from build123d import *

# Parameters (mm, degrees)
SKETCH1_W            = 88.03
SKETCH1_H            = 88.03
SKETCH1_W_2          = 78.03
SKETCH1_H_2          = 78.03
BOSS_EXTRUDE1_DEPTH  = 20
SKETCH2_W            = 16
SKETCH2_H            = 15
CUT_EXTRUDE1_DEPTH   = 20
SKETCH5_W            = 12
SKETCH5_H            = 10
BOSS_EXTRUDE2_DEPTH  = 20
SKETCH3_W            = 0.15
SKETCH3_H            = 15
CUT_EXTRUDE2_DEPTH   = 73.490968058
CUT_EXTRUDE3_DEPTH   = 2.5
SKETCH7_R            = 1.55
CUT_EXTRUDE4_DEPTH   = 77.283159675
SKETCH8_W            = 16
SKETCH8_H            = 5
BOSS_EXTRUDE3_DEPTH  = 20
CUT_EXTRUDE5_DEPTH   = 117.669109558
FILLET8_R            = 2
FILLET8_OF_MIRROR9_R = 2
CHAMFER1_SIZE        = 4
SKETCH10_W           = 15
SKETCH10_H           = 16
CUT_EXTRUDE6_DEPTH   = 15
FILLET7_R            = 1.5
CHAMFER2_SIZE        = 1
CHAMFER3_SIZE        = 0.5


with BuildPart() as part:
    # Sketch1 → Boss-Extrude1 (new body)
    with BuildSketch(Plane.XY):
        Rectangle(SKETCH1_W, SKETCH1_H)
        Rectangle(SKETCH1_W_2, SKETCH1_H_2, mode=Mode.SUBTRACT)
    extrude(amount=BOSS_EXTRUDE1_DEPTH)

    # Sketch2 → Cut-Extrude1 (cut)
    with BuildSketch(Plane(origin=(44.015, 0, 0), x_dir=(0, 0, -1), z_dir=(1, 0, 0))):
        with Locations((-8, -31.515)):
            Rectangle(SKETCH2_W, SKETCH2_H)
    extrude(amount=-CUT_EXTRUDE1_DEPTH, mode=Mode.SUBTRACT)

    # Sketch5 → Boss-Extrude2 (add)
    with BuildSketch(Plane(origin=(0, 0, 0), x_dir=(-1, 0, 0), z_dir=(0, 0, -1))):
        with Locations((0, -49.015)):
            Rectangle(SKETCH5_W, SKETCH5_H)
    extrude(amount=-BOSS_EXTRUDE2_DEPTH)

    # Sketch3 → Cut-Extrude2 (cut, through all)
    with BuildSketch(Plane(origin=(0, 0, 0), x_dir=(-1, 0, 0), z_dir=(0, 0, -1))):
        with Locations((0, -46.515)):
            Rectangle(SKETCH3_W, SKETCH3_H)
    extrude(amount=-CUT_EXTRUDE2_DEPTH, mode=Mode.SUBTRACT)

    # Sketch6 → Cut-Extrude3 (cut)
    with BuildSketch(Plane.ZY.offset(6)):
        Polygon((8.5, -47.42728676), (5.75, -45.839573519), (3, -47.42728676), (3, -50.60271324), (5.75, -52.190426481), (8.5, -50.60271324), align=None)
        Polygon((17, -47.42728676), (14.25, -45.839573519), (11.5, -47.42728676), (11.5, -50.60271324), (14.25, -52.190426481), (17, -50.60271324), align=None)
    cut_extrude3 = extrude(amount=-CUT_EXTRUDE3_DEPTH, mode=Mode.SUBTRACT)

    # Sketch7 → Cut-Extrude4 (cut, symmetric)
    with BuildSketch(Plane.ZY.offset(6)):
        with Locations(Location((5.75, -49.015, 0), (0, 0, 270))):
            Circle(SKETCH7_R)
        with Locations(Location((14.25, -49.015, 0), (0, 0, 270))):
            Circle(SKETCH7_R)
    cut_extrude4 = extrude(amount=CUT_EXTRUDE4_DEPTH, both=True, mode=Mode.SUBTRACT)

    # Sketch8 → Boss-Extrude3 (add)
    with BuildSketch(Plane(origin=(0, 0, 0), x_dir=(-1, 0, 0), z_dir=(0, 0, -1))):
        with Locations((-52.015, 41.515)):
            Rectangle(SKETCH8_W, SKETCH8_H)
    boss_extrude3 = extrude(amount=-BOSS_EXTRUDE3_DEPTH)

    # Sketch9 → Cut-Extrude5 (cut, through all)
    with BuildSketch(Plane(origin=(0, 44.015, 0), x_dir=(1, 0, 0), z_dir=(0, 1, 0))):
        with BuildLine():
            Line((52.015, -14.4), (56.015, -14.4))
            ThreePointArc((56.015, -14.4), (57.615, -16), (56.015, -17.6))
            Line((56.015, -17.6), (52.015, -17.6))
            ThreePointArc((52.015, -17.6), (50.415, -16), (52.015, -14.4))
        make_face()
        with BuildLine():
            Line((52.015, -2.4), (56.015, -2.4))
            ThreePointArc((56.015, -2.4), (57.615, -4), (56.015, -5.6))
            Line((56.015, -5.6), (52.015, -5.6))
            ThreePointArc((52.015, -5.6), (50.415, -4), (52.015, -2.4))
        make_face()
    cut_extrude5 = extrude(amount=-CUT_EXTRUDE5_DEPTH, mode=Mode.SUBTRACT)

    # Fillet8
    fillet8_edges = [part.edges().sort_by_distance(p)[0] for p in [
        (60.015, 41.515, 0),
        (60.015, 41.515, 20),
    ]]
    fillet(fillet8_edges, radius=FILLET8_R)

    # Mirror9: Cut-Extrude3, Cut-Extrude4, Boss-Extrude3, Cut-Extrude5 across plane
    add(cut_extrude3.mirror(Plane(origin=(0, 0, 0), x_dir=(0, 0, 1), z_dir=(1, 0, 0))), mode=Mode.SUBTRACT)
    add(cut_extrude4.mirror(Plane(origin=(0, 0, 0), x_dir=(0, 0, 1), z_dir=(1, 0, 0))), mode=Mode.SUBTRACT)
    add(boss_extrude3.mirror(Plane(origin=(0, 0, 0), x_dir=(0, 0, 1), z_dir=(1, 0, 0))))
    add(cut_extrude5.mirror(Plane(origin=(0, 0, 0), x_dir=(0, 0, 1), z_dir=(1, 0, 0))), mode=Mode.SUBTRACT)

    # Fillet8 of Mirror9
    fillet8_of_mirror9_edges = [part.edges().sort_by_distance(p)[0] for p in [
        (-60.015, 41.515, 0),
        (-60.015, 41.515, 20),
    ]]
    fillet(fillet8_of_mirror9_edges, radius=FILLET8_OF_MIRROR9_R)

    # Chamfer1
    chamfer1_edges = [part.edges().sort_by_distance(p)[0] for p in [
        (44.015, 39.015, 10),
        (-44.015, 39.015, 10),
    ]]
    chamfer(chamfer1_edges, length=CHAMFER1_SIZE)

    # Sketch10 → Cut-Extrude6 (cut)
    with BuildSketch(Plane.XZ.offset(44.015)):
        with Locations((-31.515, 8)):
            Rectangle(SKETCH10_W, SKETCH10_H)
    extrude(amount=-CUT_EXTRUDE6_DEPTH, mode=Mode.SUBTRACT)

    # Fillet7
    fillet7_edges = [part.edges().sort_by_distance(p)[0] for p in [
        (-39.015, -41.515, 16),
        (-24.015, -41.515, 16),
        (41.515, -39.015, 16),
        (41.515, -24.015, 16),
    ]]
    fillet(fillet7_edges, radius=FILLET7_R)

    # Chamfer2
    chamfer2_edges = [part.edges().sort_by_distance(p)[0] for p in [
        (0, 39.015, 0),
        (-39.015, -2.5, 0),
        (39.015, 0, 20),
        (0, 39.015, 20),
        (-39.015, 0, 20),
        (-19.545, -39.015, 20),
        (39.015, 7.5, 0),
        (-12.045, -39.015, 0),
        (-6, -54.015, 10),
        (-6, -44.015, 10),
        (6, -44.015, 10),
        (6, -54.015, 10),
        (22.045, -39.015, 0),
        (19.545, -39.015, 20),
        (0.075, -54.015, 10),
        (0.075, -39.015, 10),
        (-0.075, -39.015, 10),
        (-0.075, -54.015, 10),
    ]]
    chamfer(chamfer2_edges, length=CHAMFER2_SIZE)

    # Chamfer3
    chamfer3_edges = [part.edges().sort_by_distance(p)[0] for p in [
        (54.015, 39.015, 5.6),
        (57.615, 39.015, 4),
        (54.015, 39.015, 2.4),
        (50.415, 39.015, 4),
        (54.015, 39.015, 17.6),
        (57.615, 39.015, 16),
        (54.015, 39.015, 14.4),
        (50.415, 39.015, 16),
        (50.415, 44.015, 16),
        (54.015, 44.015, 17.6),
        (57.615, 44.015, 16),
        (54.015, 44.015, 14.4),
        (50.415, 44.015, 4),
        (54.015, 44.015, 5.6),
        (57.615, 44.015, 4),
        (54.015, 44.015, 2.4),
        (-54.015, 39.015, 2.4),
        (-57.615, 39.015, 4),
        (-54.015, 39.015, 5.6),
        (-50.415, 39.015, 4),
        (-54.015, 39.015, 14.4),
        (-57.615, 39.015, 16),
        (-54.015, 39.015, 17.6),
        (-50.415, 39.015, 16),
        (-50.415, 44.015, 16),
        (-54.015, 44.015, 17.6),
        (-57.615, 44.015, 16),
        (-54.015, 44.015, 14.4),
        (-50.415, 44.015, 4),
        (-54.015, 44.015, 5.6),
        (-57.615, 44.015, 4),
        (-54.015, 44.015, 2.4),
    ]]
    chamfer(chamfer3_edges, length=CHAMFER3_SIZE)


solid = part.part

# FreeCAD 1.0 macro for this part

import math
import FreeCAD as App
import Part
import Sketcher
from FreeCAD import Vector
Q = App.Units.Quantity


def edges_at(feature, points):
    """Names of the edges that pass closest to the given points."""
    edges = feature.Shape.Edges
    near = lambda p: min(range(len(edges)), key=lambda i: edges[i].distToShape(Part.Vertex(*p))[0])
    return sorted({f"Edge{near(p) + 1}" for p in points})


def add_polygon(sketch, points):
    """Adds a closed chain of lines whose ends are joined by coincident constraints."""
    first, n = sketch.GeometryCount, len(points)
    for a, b in zip(points, points[1:] + points[:1]):
        sketch.addGeometry(Part.LineSegment(App.Vector(*a, 0), App.Vector(*b, 0)), False)
    for i in range(n):
        sketch.addConstraint(Sketcher.Constraint("Coincident", first + i, 2, first + (i + 1) % n, 1))

doc = App.newDocument("Part")
body = doc.addObject("PartDesign::Body", "Body")

# Sketch on XY plane
sketch1 = body.newObject("Sketcher::SketchObject", "Sketch")
sketch1.AttachmentSupport = (doc.getObject("XY_Plane"), [""])
sketch1.MapMode = "FlatFace"
add_polygon(sketch1, [(-44.015, 44.015), (-44.015, -44.015), (44.015, -44.015), (44.015, 44.015)])  # lines 0-3
add_polygon(sketch1, [(39.015, -39.015), (-39.015, -39.015), (-39.015, 39.015), (39.015, 39.015)])  # lines 4-7
sketch1.addConstraint(Sketcher.Constraint("Vertical", 0))
sketch1.addConstraint(Sketcher.Constraint("Horizontal", 1))
sketch1.addConstraint(Sketcher.Constraint("Vertical", 2))
sketch1.addConstraint(Sketcher.Constraint("Horizontal", 3))
sketch1.addConstraint(Sketcher.Constraint("Horizontal", 4))
sketch1.addConstraint(Sketcher.Constraint("Vertical", 5))
sketch1.addConstraint(Sketcher.Constraint("Horizontal", 6))
sketch1.addConstraint(Sketcher.Constraint("Vertical", 7))
sketch1.addConstraint(Sketcher.Constraint("Symmetric", 0, 2, 2, 2, -1, 1))
sketch1.addConstraint(Sketcher.Constraint("Symmetric", 4, 2, 6, 2, -1, 1))
sketch1.addConstraint(Sketcher.Constraint("Equal", 3, 0))
sketch1.addConstraint(Sketcher.Constraint("Equal", 6, 5))
sketch1.addConstraint(Sketcher.Constraint("DistanceX", 0, 2, 4, 2, 5.0))
sketch1.addConstraint(Sketcher.Constraint("DistanceX", 1, 1, 1, 2, 88.03))
pad1 = body.newObject("PartDesign::Pad", "Pad")
pad1.Profile = sketch1
pad1.Length = 20

# Sketch on YZ plane
sketch2 = body.newObject("Sketcher::SketchObject", "Sketch001")
sketch2.AttachmentSupport = (doc.getObject("YZ_Plane"), [""])
sketch2.MapMode = "FlatFace"
sketch2.AttachmentOffset = App.Placement(Vector(0, 0, 44.015), App.Rotation())
add_polygon(sketch2, [(-24.015, 16), (-39.015, 16), (-39.015, 0), (-24.015, 0)])  # lines 0-3
sketch2.addConstraint(Sketcher.Constraint("Horizontal", 0))
sketch2.addConstraint(Sketcher.Constraint("Vertical", 1))
sketch2.addConstraint(Sketcher.Constraint("Horizontal", 2))
sketch2.addConstraint(Sketcher.Constraint("Vertical", 3))
sketch2.addConstraint(Sketcher.Constraint("PointOnObject", 1, 2, -1))
sketch2.addConstraint(Sketcher.Constraint("DistanceX", 0, 2, 0, 1, 15.0))
sketch2.addConstraint(Sketcher.Constraint("DistanceY", 1, 2, 1, 1, 16.0))
sketch2.addConstraint(Sketcher.Constraint("DistanceX", 0, 2, -1, 1, 39.015))
pocket1 = body.newObject("PartDesign::Pocket", "Pocket")
pocket1.Profile = sketch2
pocket1.Length = 20

# Sketch on XY plane
sketch3 = body.newObject("Sketcher::SketchObject", "Sketch002")
sketch3.AttachmentSupport = (doc.getObject("XY_Plane"), [""])
sketch3.MapMode = "FlatFace"
add_polygon(sketch3, [(6, -44.015), (6, -54.015), (-6, -54.015), (-6, -44.015)])  # lines 0-3
sketch3.addConstraint(Sketcher.Constraint("Vertical", 0))
sketch3.addConstraint(Sketcher.Constraint("Horizontal", 1))
sketch3.addConstraint(Sketcher.Constraint("Vertical", 2))
sketch3.addConstraint(Sketcher.Constraint("Horizontal", 3))
sketch3.addConstraint(Sketcher.Constraint("DistanceX", 1, 2, 1, 1, 12.0))
sketch3.addConstraint(Sketcher.Constraint("DistanceY", 0, 2, 0, 1, 10.0))
sketch3.addConstraint(Sketcher.Constraint("DistanceX", -1, 1, 0, 2, 6.0))
sketch3.addConstraint(Sketcher.Constraint("DistanceY", 0, 2, -1, 1, 54.015))
pad2 = body.newObject("PartDesign::Pad", "Pad001")
pad2.Profile = sketch3
pad2.Length = 20

# Sketch on XY plane
sketch4 = body.newObject("Sketcher::SketchObject", "Sketch003")
sketch4.AttachmentSupport = (doc.getObject("XY_Plane"), [""])
sketch4.MapMode = "FlatFace"
add_polygon(sketch4, [(0.075, -39.015), (0.075, -54.015), (-0.075, -54.015), (-0.075, -39.015)])  # lines 0-3
sketch4.addConstraint(Sketcher.Constraint("Vertical", 0))
sketch4.addConstraint(Sketcher.Constraint("Horizontal", 1))
sketch4.addConstraint(Sketcher.Constraint("Vertical", 2))
sketch4.addConstraint(Sketcher.Constraint("Horizontal", 3))
sketch4.addConstraint(Sketcher.Constraint("DistanceY", 0, 2, 0, 1, 15.0))
sketch4.addConstraint(Sketcher.Constraint("DistanceX", 1, 2, 1, 1, 0.15))
sketch4.addConstraint(Sketcher.Constraint("DistanceX", -1, 1, 0, 2, 0.075))
sketch4.addConstraint(Sketcher.Constraint("DistanceY", 0, 2, -1, 1, 54.015))
pocket2 = body.newObject("PartDesign::Pocket", "Pocket001")
pocket2.Profile = sketch4
pocket2.Type = "ThroughAll"
pocket2.Reversed = True

# Sketch on YZ plane
sketch5 = body.newObject("Sketcher::SketchObject", "Sketch004")
sketch5.AttachmentSupport = (doc.getObject("YZ_Plane"), [""])
sketch5.MapMode = "FlatFace"
sketch5.AttachmentOffset = App.Placement(Vector(0, 0, -6), App.Rotation())
add_polygon(sketch5, [(-47.427287, 8.5), (-45.839574, 5.75), (-47.427287, 3), (-50.602713, 3), (-52.190426, 5.75), (-50.602713, 8.5)])  # lines 0-5
add_polygon(sketch5, [(-47.427287, 17), (-45.839574, 14.25), (-47.427287, 11.5), (-50.602713, 11.5), (-52.190426, 14.25), (-50.602713, 17)])  # lines 6-11
sketch5.addConstraint(Sketcher.Constraint("Horizontal", 2))
sketch5.addConstraint(Sketcher.Constraint("Horizontal", 5))
sketch5.addConstraint(Sketcher.Constraint("Horizontal", 8))
sketch5.addConstraint(Sketcher.Constraint("Horizontal", 11))
sketch5.addConstraint(Sketcher.Constraint("Parallel", 0, 3))
sketch5.addConstraint(Sketcher.Constraint("Parallel", 1, 4))
sketch5.addConstraint(Sketcher.Constraint("Parallel", 3, 6))
sketch5.addConstraint(Sketcher.Constraint("Parallel", 4, 7))
sketch5.addConstraint(Sketcher.Constraint("Parallel", 6, 9))
sketch5.addConstraint(Sketcher.Constraint("Parallel", 7, 10))
sketch5.addConstraint(Sketcher.Constraint("Horizontal", 0, 2, 3, 2))
sketch5.addConstraint(Sketcher.Constraint("Horizontal", 6, 2, 9, 2))
sketch5.addConstraint(Sketcher.Constraint("Vertical", 2, 2, 4, 2))
sketch5.addConstraint(Sketcher.Constraint("Vertical", 1, 2, 5, 2))
sketch5.addConstraint(Sketcher.Constraint("Vertical", 0, 2, 6, 2))
sketch5.addConstraint(Sketcher.Constraint("Vertical", 5, 2, 7, 2))
sketch5.addConstraint(Sketcher.Constraint("Vertical", 4, 2, 8, 2))
sketch5.addConstraint(Sketcher.Constraint("Vertical", 8, 2, 10, 2))
sketch5.addConstraint(Sketcher.Constraint("Angle", 0, Q("-60 deg")))
sketch5.addConstraint(Sketcher.Constraint("DistanceY", -1, 1, 1, 2, 3.0))
sketch5.addConstraint(Sketcher.Constraint("DistanceY", -1, 1, 10, 2, 17.0))
sketch5.addConstraint(Sketcher.Constraint("DistanceY", 5, 2, 7, 2, 3.0))
sketch5.addConstraint(Sketcher.Constraint("DistanceX", 2, 2, 2, 1, 3.175426))
sketch5.addConstraint(Sketcher.Constraint("DistanceX", 0, 2, -1, 1, 45.839574))
pocket3 = body.newObject("PartDesign::Pocket", "Pocket002")
pocket3.Profile = sketch5
pocket3.Length = 2.5
pocket3.Reversed = True

# Sketch on YZ plane
sketch6 = body.newObject("Sketcher::SketchObject", "Sketch005")
sketch6.AttachmentSupport = (doc.getObject("YZ_Plane"), [""])
sketch6.MapMode = "FlatFace"
sketch6.AttachmentOffset = App.Placement(Vector(0, 0, -6), App.Rotation())
sketch6.addGeometry(Part.Circle(Vector(-49.015, 5.75, 0), Vector(0, 0, 1), 1.55), False)
sketch6.addGeometry(Part.Circle(Vector(-49.015, 14.25, 0), Vector(0, 0, 1), 1.55), False)
sketch6.addConstraint(Sketcher.Constraint("Equal", 0, 1))
sketch6.addConstraint(Sketcher.Constraint("Vertical", 0, 3, 1, 3))
sketch6.addConstraint(Sketcher.Constraint("Diameter", 0, 3.1))
sketch6.addConstraint(Sketcher.Constraint("DistanceY", 0, 3, 1, 3, 8.5))
sketch6.addConstraint(Sketcher.Constraint("DistanceY", -1, 1, 0, 3, 5.75))
sketch6.addConstraint(Sketcher.Constraint("DistanceX", 0, 3, -1, 1, 49.015))
pocket4 = body.newObject("PartDesign::Pocket", "Pocket003")
pocket4.Profile = sketch6
pocket4.Length = 154.566319
pocket4.Midplane = True

# Sketch on XY plane
sketch7 = body.newObject("Sketcher::SketchObject", "Sketch006")
sketch7.AttachmentSupport = (doc.getObject("XY_Plane"), [""])
sketch7.MapMode = "FlatFace"
add_polygon(sketch7, [(60.015, 44.015), (60.015, 39.015), (44.015, 39.015), (44.015, 44.015)])  # lines 0-3
sketch7.addConstraint(Sketcher.Constraint("Vertical", 0))
sketch7.addConstraint(Sketcher.Constraint("Horizontal", 1))
sketch7.addConstraint(Sketcher.Constraint("Vertical", 2))
sketch7.addConstraint(Sketcher.Constraint("Horizontal", 3))
sketch7.addConstraint(Sketcher.Constraint("DistanceX", 1, 2, 1, 1, 16.0))
sketch7.addConstraint(Sketcher.Constraint("DistanceY", 0, 2, 0, 1, 5.0))
sketch7.addConstraint(Sketcher.Constraint("DistanceX", -1, 1, 0, 2, 60.015))
sketch7.addConstraint(Sketcher.Constraint("DistanceY", -1, 1, 0, 2, 39.015))
pad3 = body.newObject("PartDesign::Pad", "Pad002")
pad3.Profile = sketch7
pad3.Length = 20

# Sketch on XZ plane
sketch8 = body.newObject("Sketcher::SketchObject", "Sketch007")
sketch8.AttachmentSupport = (doc.getObject("XZ_Plane"), [""])
sketch8.MapMode = "FlatFace"
sketch8.AttachmentOffset = App.Placement(Vector(0, 0, -44.015), App.Rotation())
sketch8.addGeometry(Part.LineSegment(Vector(56.015, 14.4, 0), Vector(52.015, 14.4, 0)), False)
sketch8.addGeometry(Part.ArcOfCircle(Part.Circle(Vector(52.015, 16, 0), Vector(0, 0, 1), 1.6), math.radians(90), math.radians(270)), False)
sketch8.addGeometry(Part.LineSegment(Vector(52.015, 17.6, 0), Vector(56.015, 17.6, 0)), False)
sketch8.addGeometry(Part.ArcOfCircle(Part.Circle(Vector(56.015, 16, 0), Vector(0, 0, 1), 1.6), math.radians(-90), math.radians(90)), False)
sketch8.addGeometry(Part.LineSegment(Vector(56.015, 2.4, 0), Vector(52.015, 2.4, 0)), False)
sketch8.addGeometry(Part.ArcOfCircle(Part.Circle(Vector(52.015, 4, 0), Vector(0, 0, 1), 1.6), math.radians(90), math.radians(270)), False)
sketch8.addGeometry(Part.LineSegment(Vector(52.015, 5.6, 0), Vector(56.015, 5.6, 0)), False)
sketch8.addGeometry(Part.ArcOfCircle(Part.Circle(Vector(56.015, 4, 0), Vector(0, 0, 1), 1.6), math.radians(-90), math.radians(90)), False)
sketch8.addConstraint(Sketcher.Constraint("Tangent", 0, 2, 1, 2))
sketch8.addConstraint(Sketcher.Constraint("Tangent", 1, 1, 2, 1))
sketch8.addConstraint(Sketcher.Constraint("Tangent", 2, 2, 3, 2))
sketch8.addConstraint(Sketcher.Constraint("Tangent", 3, 1, 0, 1))
sketch8.addConstraint(Sketcher.Constraint("Tangent", 4, 2, 5, 2))
sketch8.addConstraint(Sketcher.Constraint("Tangent", 5, 1, 6, 1))
sketch8.addConstraint(Sketcher.Constraint("Tangent", 6, 2, 7, 2))
sketch8.addConstraint(Sketcher.Constraint("Tangent", 7, 1, 4, 1))
sketch8.addConstraint(Sketcher.Constraint("Horizontal", 0))
sketch8.addConstraint(Sketcher.Constraint("Horizontal", 2))
sketch8.addConstraint(Sketcher.Constraint("Horizontal", 4))
sketch8.addConstraint(Sketcher.Constraint("Horizontal", 6))
sketch8.addConstraint(Sketcher.Constraint("Equal", 3, 5))
sketch8.addConstraint(Sketcher.Constraint("Vertical", 1, 3, 5, 3))
sketch8.addConstraint(Sketcher.Constraint("Vertical", 3, 3, 7, 3))
sketch8.addConstraint(Sketcher.Constraint("Radius", 1, 1.6))
sketch8.addConstraint(Sketcher.Constraint("DistanceX", 0, 2, 0, 1, 4.0))
sketch8.addConstraint(Sketcher.Constraint("DistanceY", -1, 1, 1, 3, 16.0))
sketch8.addConstraint(Sketcher.Constraint("DistanceY", -1, 1, 5, 3, 4.0))
sketch8.addConstraint(Sketcher.Constraint("DistanceX", -1, 1, 1, 3, 52.015))
pocket5 = body.newObject("PartDesign::Pocket", "Pocket004")
pocket5.Profile = sketch8
pocket5.Type = "ThroughAll"
pocket5.Reversed = True
doc.recompute()

fillet = body.newObject("PartDesign::Fillet", "Fillet")
fillet.Base = (pocket5, edges_at(pocket5, [(60.015, 41.515, 0), (60.015, 41.515, 20)]))
fillet.Radius = 2
doc.recompute()

mirrored = body.newObject("PartDesign::Mirrored", "Mirrored")
mirrored.Originals = [pocket3, pocket4, pad3, pocket5]
mirrored.MirrorPlane = (doc.getObject("YZ_Plane"), [""])
body.Tip = mirrored
doc.recompute()

fillet2 = body.newObject("PartDesign::Fillet", "Fillet001")
fillet2.Base = (mirrored, edges_at(mirrored, [(-60.015, 41.515, 0), (-60.015, 41.515, 20)]))
fillet2.Radius = 2
doc.recompute()

chamfer = body.newObject("PartDesign::Chamfer", "Chamfer")
chamfer.Base = (fillet2, edges_at(fillet2, [(44.015, 39.015, 10), (-44.015, 39.015, 10)]))
chamfer.Size = 4

# Sketch on XZ plane
sketch9 = body.newObject("Sketcher::SketchObject", "Sketch008")
sketch9.AttachmentSupport = (doc.getObject("XZ_Plane"), [""])
sketch9.MapMode = "FlatFace"
sketch9.AttachmentOffset = App.Placement(Vector(0, 0, 44.015), App.Rotation())
add_polygon(sketch9, [(-39.015, 16), (-39.015, 0), (-24.015, 0), (-24.015, 16)])  # lines 0-3
sketch9.addConstraint(Sketcher.Constraint("Vertical", 0))
sketch9.addConstraint(Sketcher.Constraint("Horizontal", 1))
sketch9.addConstraint(Sketcher.Constraint("Vertical", 2))
sketch9.addConstraint(Sketcher.Constraint("Horizontal", 3))
sketch9.addConstraint(Sketcher.Constraint("PointOnObject", 0, 2, -1))
sketch9.addConstraint(Sketcher.Constraint("DistanceX", 1, 1, 1, 2, 15.0))
sketch9.addConstraint(Sketcher.Constraint("DistanceY", 0, 2, 0, 1, 16.0))
sketch9.addConstraint(Sketcher.Constraint("DistanceX", 0, 2, -1, 1, 39.015))
pocket6 = body.newObject("PartDesign::Pocket", "Pocket005")
pocket6.Profile = sketch9
pocket6.Length = 15
doc.recompute()

fillet3 = body.newObject("PartDesign::Fillet", "Fillet002")
fillet3.Base = (pocket6, edges_at(pocket6, [
    (-39.015, -41.515, 16),
    (-24.015, -41.515, 16),
    (41.515, -39.015, 16),
    (41.515, -24.015, 16),
]))
fillet3.Radius = 1.5
doc.recompute()

chamfer2 = body.newObject("PartDesign::Chamfer", "Chamfer001")
chamfer2.Base = (fillet3, edges_at(fillet3, [
    (0, 39.015, 0),
    (-39.015, -2.5, 0),
    (39.015, 0, 20),
    (0, 39.015, 20),
    (-39.015, 0, 20),
    (-19.545, -39.015, 20),
    (39.015, 7.5, 0),
    (-12.045, -39.015, 0),
    (-6, -54.015, 10),
    (-6, -44.015, 10),
    (6, -44.015, 10),
    (6, -54.015, 10),
    (22.045, -39.015, 0),
    (19.545, -39.015, 20),
    (0.075, -54.015, 10),
    (0.075, -39.015, 10),
    (-0.075, -39.015, 10),
    (-0.075, -54.015, 10),
]))
chamfer2.Size = 1
doc.recompute()

chamfer3 = body.newObject("PartDesign::Chamfer", "Chamfer002")
chamfer3.Base = (chamfer2, edges_at(chamfer2, [
    (54.015, 39.015, 5.6),
    (57.615, 39.015, 4),
    (54.015, 39.015, 2.4),
    (50.415, 39.015, 4),
    (54.015, 39.015, 17.6),
    (57.615, 39.015, 16),
    (54.015, 39.015, 14.4),
    (50.415, 39.015, 16),
    (50.415, 44.015, 16),
    (54.015, 44.015, 17.6),
    (57.615, 44.015, 16),
    (54.015, 44.015, 14.4),
    (50.415, 44.015, 4),
    (54.015, 44.015, 5.6),
    (57.615, 44.015, 4),
    (54.015, 44.015, 2.4),
    (-54.015, 39.015, 2.4),
    (-57.615, 39.015, 4),
    (-54.015, 39.015, 5.6),
    (-50.415, 39.015, 4),
    (-54.015, 39.015, 14.4),
    (-57.615, 39.015, 16),
    (-54.015, 39.015, 17.6),
    (-50.415, 39.015, 16),
    (-50.415, 44.015, 16),
    (-54.015, 44.015, 17.6),
    (-57.615, 44.015, 16),
    (-54.015, 44.015, 14.4),
    (-50.415, 44.015, 4),
    (-54.015, 44.015, 5.6),
    (-57.615, 44.015, 4),
    (-54.015, 44.015, 2.4),
]))
chamfer3.Size = 0.5

doc.recompute()
